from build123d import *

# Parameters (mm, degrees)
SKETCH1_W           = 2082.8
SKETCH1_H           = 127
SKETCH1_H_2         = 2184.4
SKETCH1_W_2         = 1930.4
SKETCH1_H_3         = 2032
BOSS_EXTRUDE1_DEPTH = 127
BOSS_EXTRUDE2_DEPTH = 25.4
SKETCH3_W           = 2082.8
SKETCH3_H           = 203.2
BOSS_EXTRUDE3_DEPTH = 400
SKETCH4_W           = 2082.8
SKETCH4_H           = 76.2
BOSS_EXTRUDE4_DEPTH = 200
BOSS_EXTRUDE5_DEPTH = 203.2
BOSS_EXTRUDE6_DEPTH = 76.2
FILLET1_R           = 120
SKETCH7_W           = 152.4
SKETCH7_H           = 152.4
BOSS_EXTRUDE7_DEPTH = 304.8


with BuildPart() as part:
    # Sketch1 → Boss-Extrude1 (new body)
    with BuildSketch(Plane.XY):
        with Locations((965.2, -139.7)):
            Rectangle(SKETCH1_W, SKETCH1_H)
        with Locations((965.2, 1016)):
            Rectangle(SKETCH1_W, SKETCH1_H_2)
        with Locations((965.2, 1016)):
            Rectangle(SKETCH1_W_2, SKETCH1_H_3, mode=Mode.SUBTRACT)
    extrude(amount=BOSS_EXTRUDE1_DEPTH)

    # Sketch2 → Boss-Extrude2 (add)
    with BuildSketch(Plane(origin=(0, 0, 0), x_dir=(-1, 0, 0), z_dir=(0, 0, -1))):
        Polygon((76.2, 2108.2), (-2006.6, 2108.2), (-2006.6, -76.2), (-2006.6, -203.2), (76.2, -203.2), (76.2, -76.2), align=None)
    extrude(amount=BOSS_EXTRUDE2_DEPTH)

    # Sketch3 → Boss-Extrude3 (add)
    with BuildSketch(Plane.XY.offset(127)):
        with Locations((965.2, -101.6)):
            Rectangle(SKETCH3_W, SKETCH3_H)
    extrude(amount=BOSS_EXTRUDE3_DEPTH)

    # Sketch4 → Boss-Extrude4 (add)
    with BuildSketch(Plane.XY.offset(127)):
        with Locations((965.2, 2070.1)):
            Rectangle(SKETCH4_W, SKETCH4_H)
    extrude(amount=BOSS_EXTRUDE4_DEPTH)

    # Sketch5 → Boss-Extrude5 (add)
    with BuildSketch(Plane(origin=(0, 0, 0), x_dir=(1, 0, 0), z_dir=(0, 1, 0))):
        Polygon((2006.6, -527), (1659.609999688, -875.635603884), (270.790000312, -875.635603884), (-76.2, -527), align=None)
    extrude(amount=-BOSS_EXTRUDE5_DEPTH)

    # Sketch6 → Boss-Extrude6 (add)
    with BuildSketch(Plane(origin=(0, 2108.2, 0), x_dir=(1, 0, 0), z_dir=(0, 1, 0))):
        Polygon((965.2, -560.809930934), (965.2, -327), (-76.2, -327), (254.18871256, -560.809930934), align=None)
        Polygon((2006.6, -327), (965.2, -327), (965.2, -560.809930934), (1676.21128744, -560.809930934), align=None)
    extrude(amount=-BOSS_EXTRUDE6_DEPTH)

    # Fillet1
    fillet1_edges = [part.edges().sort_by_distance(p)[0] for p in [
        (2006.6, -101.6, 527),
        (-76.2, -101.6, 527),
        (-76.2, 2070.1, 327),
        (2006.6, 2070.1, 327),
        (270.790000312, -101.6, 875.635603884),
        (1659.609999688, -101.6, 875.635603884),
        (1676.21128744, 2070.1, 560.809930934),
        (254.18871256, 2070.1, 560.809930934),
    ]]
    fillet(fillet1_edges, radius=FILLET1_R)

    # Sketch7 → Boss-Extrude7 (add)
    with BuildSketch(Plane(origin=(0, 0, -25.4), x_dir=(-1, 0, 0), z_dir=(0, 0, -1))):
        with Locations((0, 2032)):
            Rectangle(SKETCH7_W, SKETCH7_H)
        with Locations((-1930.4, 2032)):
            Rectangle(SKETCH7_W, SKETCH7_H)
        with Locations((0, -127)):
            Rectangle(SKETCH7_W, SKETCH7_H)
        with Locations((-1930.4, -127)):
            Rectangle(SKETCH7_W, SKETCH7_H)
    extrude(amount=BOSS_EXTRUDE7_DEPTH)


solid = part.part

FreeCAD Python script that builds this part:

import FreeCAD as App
import Part
import Sketcher
Q = App.Units.Quantity


def edges_at(feature, points):
    """Names of the edges that pass closest to the given points."""
    edges = feature.Shape.Edges
    near = lambda p: min(range(len(edges)), key=lambda i: edges[i].distToShape(Part.Vertex(*p))[0])
    return sorted({f"Edge{near(p) + 1}" for p in points})

doc = App.newDocument("Part")
body = doc.addObject("PartDesign::Body", "Body")

sketch1 = doc.addObject("Sketcher::SketchObject", "Sketch")
body.addObject(sketch1)
sketch1.AttachmentSupport = (doc.XY_Plane, [""])
sketch1.MapMode = "FlatFace"
sketch1.addGeometry([
    Part.LineSegment(App.Vector(-76.2, -203.2, 0), App.Vector(2006.6, -203.2, 0)),
    Part.LineSegment(App.Vector(2006.6, -203.2, 0), App.Vector(2006.6, 2108.2, 0)),
    Part.LineSegment(App.Vector(2006.6, 2108.2, 0), App.Vector(-76.2, 2108.2, 0)),
    Part.LineSegment(App.Vector(-76.2, 2108.2, 0), App.Vector(-76.2, -203.2, 0)),
    Part.LineSegment(App.Vector(1930.4, 0, 0), App.Vector(0, 0, 0)),
    Part.LineSegment(App.Vector(0, 0, 0), App.Vector(0, 2032, 0)),
    Part.LineSegment(App.Vector(0, 2032, 0), App.Vector(1930.4, 2032, 0)),
    Part.LineSegment(App.Vector(1930.4, 2032, 0), App.Vector(1930.4, 0, 0)),
], False)
sketch1.addConstraint([
    Sketcher.Constraint("Coincident", 0, 2, 1, 1),
    Sketcher.Constraint("Coincident", 1, 2, 2, 1),
    Sketcher.Constraint("Coincident", 2, 2, 3, 1),
    Sketcher.Constraint("Coincident", 3, 2, 0, 1),
    Sketcher.Constraint("Coincident", 4, 2, 5, 1),
    Sketcher.Constraint("Coincident", 5, 2, 6, 1),
    Sketcher.Constraint("Coincident", 6, 2, 7, 1),
    Sketcher.Constraint("Coincident", 7, 2, 4, 1),
    Sketcher.Constraint("Horizontal", 0),
    Sketcher.Constraint("Vertical", 1),
    Sketcher.Constraint("Horizontal", 2),
    Sketcher.Constraint("Vertical", 3),
    Sketcher.Constraint("Horizontal", 4),
    Sketcher.Constraint("Vertical", 5),
    Sketcher.Constraint("Horizontal", 6),
    Sketcher.Constraint("Vertical", 7),
    Sketcher.Constraint("Coincident", 4, 2, -1, 1),
    Sketcher.Constraint("DistanceX", 0, 1, 0, 2, Q("82 in")),
    Sketcher.Constraint("DistanceX", 4, 2, 4, 1, Q("76 in")),
    Sketcher.Constraint("DistanceY", 1, 1, 1, 2, Q("91 in")),
    Sketcher.Constraint("DistanceY", 5, 1, 5, 2, Q("80 in")),
    Sketcher.Constraint("DistanceX", -1, 1, 0, 2, Q("79 in")),
    Sketcher.Constraint("DistanceY", 0, 2, -1, 1, Q("8 in")),
])
pad1 = doc.addObject("PartDesign::Pad", "Pad")
body.addObject(pad1)
pad1.Profile = sketch1
pad1.Length = Q("5 in")

sketch2 = doc.addObject("Sketcher::SketchObject", "Sketch001")
body.addObject(sketch2)
sketch2.AttachmentSupport = (doc.XY_Plane, [""])
sketch2.MapMode = "FlatFace"
sketch2.addGeometry([
    Part.LineSegment(App.Vector(-76.2, 2108.2, 0), App.Vector(2006.6, 2108.2, 0)),
    Part.LineSegment(App.Vector(2006.6, 2108.2, 0), App.Vector(2006.6, -203.2, 0)),
    Part.LineSegment(App.Vector(2006.6, -203.2, 0), App.Vector(-76.2, -203.2, 0)),
    Part.LineSegment(App.Vector(-76.2, -203.2, 0), App.Vector(-76.2, 2108.2, 0)),
], False)
sketch2.addConstraint([
    Sketcher.Constraint("Coincident", 0, 2, 1, 1),
    Sketcher.Constraint("Coincident", 1, 2, 2, 1),
    Sketcher.Constraint("Coincident", 2, 2, 3, 1),
    Sketcher.Constraint("Coincident", 3, 2, 0, 1),
    Sketcher.Constraint("Horizontal", 0),
    Sketcher.Constraint("Vertical", 1),
    Sketcher.Constraint("Horizontal", 2),
    Sketcher.Constraint("Vertical", 3),
    Sketcher.Constraint("DistanceX", 0, 1, 0, 2, Q("82 in")),
    Sketcher.Constraint("DistanceY", 1, 2, 1, 1, Q("91 in")),
    Sketcher.Constraint("DistanceX", -1, 1, 0, 2, Q("79 in")),
    Sketcher.Constraint("DistanceY", -1, 1, 0, 2, Q("83 in")),
])
pad2 = doc.addObject("PartDesign::Pad", "Pad001")
body.addObject(pad2)
pad2.Profile = sketch2
pad2.Length = Q("1 in")
pad2.Reversed = True

sketch3 = doc.addObject("Sketcher::SketchObject", "Sketch002")
body.addObject(sketch3)
sketch3.AttachmentSupport = (doc.XY_Plane, [""])
sketch3.MapMode = "FlatFace"
sketch3.AttachmentOffset = App.Placement(App.Vector(0, 0, 5 * 25.4), App.Rotation())
sketch3.addGeometry([
    Part.LineSegment(App.Vector(-76.2, 0, 0), App.Vector(-76.2, -203.2, 0)),
    Part.LineSegment(App.Vector(-76.2, -203.2, 0), App.Vector(2006.6, -203.2, 0)),
    Part.LineSegment(App.Vector(2006.6, -203.2, 0), App.Vector(2006.6, 0, 0)),
    Part.LineSegment(App.Vector(2006.6, 0, 0), App.Vector(-76.2, 0, 0)),
], False)
sketch3.addConstraint([
    Sketcher.Constraint("Coincident", 0, 2, 1, 1),
    Sketcher.Constraint("Coincident", 1, 2, 2, 1),
    Sketcher.Constraint("Coincident", 2, 2, 3, 1),
    Sketcher.Constraint("Coincident", 3, 2, 0, 1),
    Sketcher.Constraint("Vertical", 0),
    Sketcher.Constraint("Horizontal", 1),
    Sketcher.Constraint("Vertical", 2),
    Sketcher.Constraint("Horizontal", 3),
    Sketcher.Constraint("PointOnObject", 2, 2, -1),
    Sketcher.Constraint("DistanceX", 1, 1, 1, 2, Q("82 in")),
    Sketcher.Constraint("DistanceY", 0, 2, 0, 1, Q("8 in")),
    Sketcher.Constraint("DistanceX", 0, 2, -1, 1, Q("3 in")),
])
pad3 = doc.addObject("PartDesign::Pad", "Pad002")
body.addObject(pad3)
pad3.Profile = sketch3
pad3.Length = 400

sketch4 = doc.addObject("Sketcher::SketchObject", "Sketch003")
body.addObject(sketch4)
sketch4.AttachmentSupport = (doc.XY_Plane, [""])
sketch4.MapMode = "FlatFace"
sketch4.AttachmentOffset = App.Placement(App.Vector(0, 0, 5 * 25.4), App.Rotation())
sketch4.addGeometry([
    Part.LineSegment(App.Vector(-76.2, 2108.2, 0), App.Vector(-76.2, 2032, 0)),
    Part.LineSegment(App.Vector(-76.2, 2032, 0), App.Vector(2006.6, 2032, 0)),
    Part.LineSegment(App.Vector(2006.6, 2032, 0), App.Vector(2006.6, 2108.2, 0)),
    Part.LineSegment(App.Vector(2006.6, 2108.2, 0), App.Vector(-76.2, 2108.2, 0)),
], False)
sketch4.addConstraint([
    Sketcher.Constraint("Coincident", 0, 2, 1, 1),
    Sketcher.Constraint("Coincident", 1, 2, 2, 1),
    Sketcher.Constraint("Coincident", 2, 2, 3, 1),
    Sketcher.Constraint("Coincident", 3, 2, 0, 1),
    Sketcher.Constraint("Vertical", 0),
    Sketcher.Constraint("Horizontal", 1),
    Sketcher.Constraint("Vertical", 2),
    Sketcher.Constraint("Horizontal", 3),
    Sketcher.Constraint("DistanceX", 1, 1, 1, 2, Q("82 in")),
    Sketcher.Constraint("DistanceY", 0, 2, 0, 1, Q("3 in")),
    Sketcher.Constraint("DistanceX", 0, 2, -1, 1, Q("3 in")),
    Sketcher.Constraint("DistanceY", -1, 1, 0, 2, Q("80 in")),
])
pad4 = doc.addObject("PartDesign::Pad", "Pad003")
body.addObject(pad4)
pad4.Profile = sketch4
pad4.Length = 200

sketch5 = doc.addObject("Sketcher::SketchObject", "Sketch004")
body.addObject(sketch5)
sketch5.AttachmentSupport = (doc.XZ_Plane, [""])
sketch5.MapMode = "FlatFace"
sketch5.addGeometry([
    Part.LineSegment(App.Vector(1659.61, 875.635604, 0), App.Vector(2006.6, 527, 0)),
    Part.LineSegment(App.Vector(2006.6, 527, 0), App.Vector(-76.2, 527, 0)),
    Part.LineSegment(App.Vector(-76.2, 527, 0), App.Vector(270.79, 875.635604, 0)),
    Part.LineSegment(App.Vector(270.79, 875.635604, 0), App.Vector(1659.61, 875.635604, 0)),
], False)
sketch5.addConstraint([
    Sketcher.Constraint("Coincident", 0, 2, 1, 1),
    Sketcher.Constraint("Coincident", 1, 2, 2, 1),
    Sketcher.Constraint("Coincident", 2, 2, 3, 1),
    Sketcher.Constraint("Coincident", 3, 2, 0, 1),
    Sketcher.Constraint("Horizontal", 1),
    Sketcher.Constraint("Horizontal", 3),
    Sketcher.Constraint("Equal", 0, 2),
    Sketcher.Constraint("DistanceX", 1, 2, 1, 1, Q("82 in")),
    Sketcher.Constraint("DistanceX", -1, 1, 0, 2, Q("79 in")),
    Sketcher.Constraint("DistanceX", 3, 1, 3, 2, Q("1388.819999 mm")),
    Sketcher.Constraint("DistanceY", -1, 1, 0, 2, Q("527 mm")),
    Sketcher.Constraint("Distance", 0, Q("491.882958 mm")),
])
pad5 = doc.addObject("PartDesign::Pad", "Pad004")
body.addObject(pad5)
pad5.Profile = sketch5
pad5.Length = Q("8 in")

sketch6 = doc.addObject("Sketcher::SketchObject", "Sketch005")
body.addObject(sketch6)
sketch6.AttachmentSupport = (doc.XZ_Plane, [""])
sketch6.MapMode = "FlatFace"
sketch6.AttachmentOffset = App.Placement(App.Vector(0, 0, -83 * 25.4), App.Rotation())
sketch6.addGeometry([
    Part.LineSegment(App.Vector(-76.2, 327, 0), App.Vector(254.188713, 560.809931, 0)),
    Part.LineSegment(App.Vector(254.188713, 560.809931, 0), App.Vector(1676.211287, 560.809931, 0)),
    Part.LineSegment(App.Vector(1676.211287, 560.809931, 0), App.Vector(2006.6, 327, 0)),
    Part.LineSegment(App.Vector(2006.6, 327, 0), App.Vector(-76.2, 327, 0)),
], False)
sketch6.addConstraint([
    Sketcher.Constraint("Coincident", 0, 2, 1, 1),
    Sketcher.Constraint("Coincident", 1, 2, 2, 1),
    Sketcher.Constraint("Coincident", 2, 2, 3, 1),
    Sketcher.Constraint("Coincident", 3, 2, 0, 1),
    Sketcher.Constraint("Horizontal", 1),
    Sketcher.Constraint("Horizontal", 3),
    Sketcher.Constraint("Equal", 0, 2),
    Sketcher.Constraint("DistanceX", 3, 2, 3, 1, Q("82 in")),
    Sketcher.Constraint("DistanceX", -1, 1, 2, 2, Q("79 in")),
    Sketcher.Constraint("DistanceY", -1, 1, 2, 2, Q("327 mm")),
    Sketcher.Constraint("Distance", 0, Q("404.75151 mm")),
    Sketcher.Constraint("DistanceX", 1, 1, 1, 2, Q("1422.022575 mm")),
])
pad6 = doc.addObject("PartDesign::Pad", "Pad005")
body.addObject(pad6)
pad6.Profile = sketch6
pad6.Length = Q("3 in")
doc.recompute()

fillet = doc.addObject("PartDesign::Fillet", "Fillet")
body.addObject(fillet)
fillet.Base = (pad6, edges_at(pad6, [
    (2006.6, -101.6, 527),
    (-76.2, -101.6, 527),
    (-76.2, 2070.1, 327),
    (2006.6, 2070.1, 327),
    (270.79, -101.6, 875.636),
    (1659.61, -101.6, 875.636),
    (1676.211, 2070.1, 560.81),
    (254.189, 2070.1, 560.81),
]))
fillet.Radius = 120

sketch7 = doc.addObject("Sketcher::SketchObject", "Sketch006")
body.addObject(sketch7)
sketch7.AttachmentSupport = (doc.XY_Plane, [""])
sketch7.MapMode = "FlatFace"
sketch7.AttachmentOffset = App.Placement(App.Vector(0, 0, -1 * 25.4), App.Rotation())
sketch7.addGeometry([
    Part.LineSegment(App.Vector(76.2, 2108.2, 0), App.Vector(76.2, 1955.8, 0)),
    Part.LineSegment(App.Vector(76.2, 1955.8, 0), App.Vector(-76.2, 1955.8, 0)),
    Part.LineSegment(App.Vector(-76.2, 1955.8, 0), App.Vector(-76.2, 2108.2, 0)),
    Part.LineSegment(App.Vector(-76.2, 2108.2, 0), App.Vector(76.2, 2108.2, 0)),
    Part.LineSegment(App.Vector(2006.6, 2108.2, 0), App.Vector(2006.6, 1955.8, 0)),
    Part.LineSegment(App.Vector(2006.6, 1955.8, 0), App.Vector(1854.2, 1955.8, 0)),
    Part.LineSegment(App.Vector(1854.2, 1955.8, 0), App.Vector(1854.2, 2108.2, 0)),
    Part.LineSegment(App.Vector(1854.2, 2108.2, 0), App.Vector(2006.6, 2108.2, 0)),
    Part.LineSegment(App.Vector(76.2, -50.8, 0), App.Vector(76.2, -203.2, 0)),
    Part.LineSegment(App.Vector(76.2, -203.2, 0), App.Vector(-76.2, -203.2, 0)),
    Part.LineSegment(App.Vector(-76.2, -203.2, 0), App.Vector(-76.2, -50.8, 0)),
    Part.LineSegment(App.Vector(-76.2, -50.8, 0), App.Vector(76.2, -50.8, 0)),
    Part.LineSegment(App.Vector(2006.6, -50.8, 0), App.Vector(2006.6, -203.2, 0)),
    Part.LineSegment(App.Vector(2006.6, -203.2, 0), App.Vector(1854.2, -203.2, 0)),
    Part.LineSegment(App.Vector(1854.2, -203.2, 0), App.Vector(1854.2, -50.8, 0)),
    Part.LineSegment(App.Vector(1854.2, -50.8, 0), App.Vector(2006.6, -50.8, 0)),
], False)
sketch7.addConstraint([
    Sketcher.Constraint("Coincident", 0, 2, 1, 1),
    Sketcher.Constraint("Coincident", 1, 2, 2, 1),
    Sketcher.Constraint("Coincident", 2, 2, 3, 1),
    Sketcher.Constraint("Coincident", 3, 2, 0, 1),
    Sketcher.Constraint("Coincident", 4, 2, 5, 1),
    Sketcher.Constraint("Coincident", 5, 2, 6, 1),
    Sketcher.Constraint("Coincident", 6, 2, 7, 1),
    Sketcher.Constraint("Coincident", 7, 2, 4, 1),
    Sketcher.Constraint("Coincident", 8, 2, 9, 1),
    Sketcher.Constraint("Coincident", 9, 2, 10, 1),
    Sketcher.Constraint("Coincident", 10, 2, 11, 1),
    Sketcher.Constraint("Coincident", 11, 2, 8, 1),
    Sketcher.Constraint("Coincident", 12, 2, 13, 1),
    Sketcher.Constraint("Coincident", 13, 2, 14, 1),
    Sketcher.Constraint("Coincident", 14, 2, 15, 1),
    Sketcher.Constraint("Coincident", 15, 2, 12, 1),
    Sketcher.Constraint("Vertical", 0),
    Sketcher.Constraint("Horizontal", 1),
    Sketcher.Constraint("Vertical", 2),
    Sketcher.Constraint("Horizontal", 3),
    Sketcher.Constraint("Vertical", 4),
    Sketcher.Constraint("Horizontal", 5),
    Sketcher.Constraint("Vertical", 6),
    Sketcher.Constraint("Horizontal", 7),
    Sketcher.Constraint("Vertical", 8),
    Sketcher.Constraint("Horizontal", 9),
    Sketcher.Constraint("Vertical", 10),
    Sketcher.Constraint("Horizontal", 11),
    Sketcher.Constraint("Vertical", 12),
    Sketcher.Constraint("Horizontal", 13),
    Sketcher.Constraint("Vertical", 14),
    Sketcher.Constraint("Horizontal", 15),
    Sketcher.Constraint("Horizontal", 1, 2, 4, 2),
    Sketcher.Constraint("Horizontal", 3, 2, 6, 2),
    Sketcher.Constraint("Horizontal", 9, 2, 12, 2),
    Sketcher.Constraint("Horizontal", 11, 2, 14, 2),
    Sketcher.Constraint("Vertical", 3, 2, 8, 2),
    Sketcher.Constraint("Vertical", 2, 2, 9, 2),
    Sketcher.Constraint("Vertical", 7, 2, 12, 2),
    Sketcher.Constraint("Vertical", 6, 2, 13, 2),
    Sketcher.Constraint("Equal", 3, 5),
    Sketcher.Constraint("Equal", 15, 0),
    Sketcher.Constraint("Equal", 6, 8),
    Sketcher.Constraint("DistanceX", 1, 2, 1, 1, Q("6 in")),
    Sketcher.Constraint("DistanceX", -1, 1, 0, 2, Q("3 in")),
    Sketcher.Constraint("DistanceY", -1, 1, 0, 2, Q("77 in")),
    Sketcher.Constraint("DistanceX", -1, 1, 4, 2, Q("79 in")),
    Sketcher.Constraint("DistanceY", 8, 2, -1, 1, Q("8 in")),
])
pad7 = doc.addObject("PartDesign::Pad", "Pad006")
body.addObject(pad7)
pad7.Profile = sketch7
pad7.Length = Q("12 in")
pad7.Reversed = True

doc.recompute()
